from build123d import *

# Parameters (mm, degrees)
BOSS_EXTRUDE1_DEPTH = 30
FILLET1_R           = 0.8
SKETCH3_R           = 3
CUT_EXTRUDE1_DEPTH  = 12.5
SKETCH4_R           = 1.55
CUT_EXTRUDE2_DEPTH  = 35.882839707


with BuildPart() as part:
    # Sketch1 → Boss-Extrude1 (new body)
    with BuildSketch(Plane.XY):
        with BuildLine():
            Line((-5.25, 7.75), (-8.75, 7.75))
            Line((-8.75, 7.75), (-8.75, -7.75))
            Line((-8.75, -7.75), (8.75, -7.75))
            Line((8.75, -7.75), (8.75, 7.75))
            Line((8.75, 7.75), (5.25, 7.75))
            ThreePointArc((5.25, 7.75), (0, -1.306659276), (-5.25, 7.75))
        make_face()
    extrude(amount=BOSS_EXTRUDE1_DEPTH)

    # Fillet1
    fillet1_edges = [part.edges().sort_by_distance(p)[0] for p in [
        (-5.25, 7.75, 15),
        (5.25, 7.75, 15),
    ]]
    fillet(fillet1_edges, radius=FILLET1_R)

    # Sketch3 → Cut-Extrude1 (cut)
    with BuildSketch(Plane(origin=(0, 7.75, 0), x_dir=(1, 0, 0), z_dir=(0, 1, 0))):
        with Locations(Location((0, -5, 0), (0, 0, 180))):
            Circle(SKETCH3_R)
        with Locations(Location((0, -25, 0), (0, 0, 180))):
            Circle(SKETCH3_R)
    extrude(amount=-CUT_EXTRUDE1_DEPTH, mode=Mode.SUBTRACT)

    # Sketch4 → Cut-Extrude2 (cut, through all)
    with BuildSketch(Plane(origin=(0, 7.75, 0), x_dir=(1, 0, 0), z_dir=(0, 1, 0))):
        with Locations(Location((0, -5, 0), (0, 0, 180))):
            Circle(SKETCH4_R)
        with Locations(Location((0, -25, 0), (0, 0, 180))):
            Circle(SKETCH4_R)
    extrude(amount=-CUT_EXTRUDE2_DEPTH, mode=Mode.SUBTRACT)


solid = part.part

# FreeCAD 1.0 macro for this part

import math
import FreeCAD as App
import Part
import Sketcher


def edges_at(feature, points):
    """Names of the edges that pass closest to the given points."""
    edges = feature.Shape.Edges
    near = lambda p: min(range(len(edges)), key=lambda i: edges[i].distToShape(Part.Vertex(*p))[0])
    return sorted({f"Edge{near(p) + 1}" for p in points})

doc = App.newDocument("Part")
params = doc.addObject("Spreadsheet::Sheet", "Params")
for row, (alias, value) in enumerate([
    ("sketch1_radius", "6.05 mm"),
    ("sketch1_width", "3.5 mm"),
    ("sketch1_width2", "17.5 mm"),
    ("sketch1_height", "15.5 mm"),
    ("pad1_length", "30 mm"),
    ("fillet_radius", "0.8 mm"),
    ("sketch2_diameter", "6 mm"),
    ("pocket1_length", "12.5 mm"),
    ("sketch3_diameter", "3.1 mm"),
], start=1):
    params.set(f"A{row}", alias)
    params.set(f"B{row}", "=" + value)
    params.setAlias(f"B{row}", alias)

body = doc.addObject("PartDesign::Body", "Body")

sketch1 = doc.addObject("Sketcher::SketchObject", "Sketch")
body.addObject(sketch1)
sketch1.AttachmentSupport = (doc.XY_Plane, [""])
sketch1.MapMode = "FlatFace"
sketch1.addGeometry(Part.LineSegment(App.Vector(-5.25, 7.75, 0), App.Vector(-8.75, 7.75, 0)), False)
sketch1.addGeometry(Part.LineSegment(App.Vector(-8.75, 7.75, 0), App.Vector(-8.75, -7.75, 0)), False)
sketch1.addGeometry(Part.LineSegment(App.Vector(-8.75, -7.75, 0), App.Vector(8.75, -7.75, 0)), False)
sketch1.addGeometry(Part.LineSegment(App.Vector(8.75, -7.75, 0), App.Vector(8.75, 7.75, 0)), False)
sketch1.addGeometry(Part.LineSegment(App.Vector(8.75, 7.75, 0), App.Vector(5.25, 7.75, 0)), False)
sketch1.addGeometry(Part.ArcOfCircle(Part.Circle(App.Vector(0, 4.743341, 0), App.Vector(0, 0, 1), 6.05), math.radians(150.200362), math.radians(389.799638)), False)
sketch1.addConstraint(Sketcher.Constraint("Coincident", 0, 2, 1, 1))
sketch1.addConstraint(Sketcher.Constraint("Coincident", 1, 2, 2, 1))
sketch1.addConstraint(Sketcher.Constraint("Coincident", 2, 2, 3, 1))
sketch1.addConstraint(Sketcher.Constraint("Coincident", 3, 2, 4, 1))
sketch1.addConstraint(Sketcher.Constraint("Coincident", 4, 2, 5, 2))
sketch1.addConstraint(Sketcher.Constraint("Coincident", 5, 1, 0, 1))
sketch1.addConstraint(Sketcher.Constraint("Horizontal", 0))
sketch1.addConstraint(Sketcher.Constraint("Vertical", 1))
sketch1.addConstraint(Sketcher.Constraint("Horizontal", 2))
sketch1.addConstraint(Sketcher.Constraint("Vertical", 3))
sketch1.addConstraint(Sketcher.Constraint("Horizontal", 4))
sketch1.addConstraint(Sketcher.Constraint("Symmetric", 0, 2, 2, 2, -1, 1))
sketch1.addConstraint(Sketcher.Constraint("Symmetric", 4, 2, 5, 1, -2))
sketch1.addConstraint(Sketcher.Constraint("Radius", 5, 6.05))
sketch1.addConstraint(Sketcher.Constraint("DistanceX", 0, 2, 0, 1, 3.5))
sketch1.addConstraint(Sketcher.Constraint("DistanceX", 2, 1, 2, 2, 17.5))
sketch1.addConstraint(Sketcher.Constraint("DistanceY", 1, 2, 1, 1, 15.5))
sketch1.setExpression("Constraints[13]", "Params.sketch1_radius")
sketch1.setExpression("Constraints[14]", "Params.sketch1_width")
sketch1.setExpression("Constraints[15]", "Params.sketch1_width2")
sketch1.setExpression("Constraints[16]", "Params.sketch1_height")
pad1 = doc.addObject("PartDesign::Pad", "Pad")
body.addObject(pad1)
pad1.Profile = sketch1
pad1.setExpression("Length", "Params.pad1_length")
doc.recompute()

fillet = doc.addObject("PartDesign::Fillet", "Fillet")
body.addObject(fillet)
fillet.Base = (pad1, edges_at(pad1, [(-5.25, 7.75, 15), (5.25, 7.75, 15)]))
fillet.setExpression("Radius", "Params.fillet_radius")

sketch2 = doc.addObject("Sketcher::SketchObject", "Sketch001")
body.addObject(sketch2)
sketch2.AttachmentSupport = (doc.XZ_Plane, [""])
sketch2.MapMode = "FlatFace"
sketch2.AttachmentOffset = App.Placement(App.Vector(0, 0, -7.75), App.Rotation())
sketch2.addGeometry(Part.Circle(App.Vector(0, 5, 0), App.Vector(0, 0, 1), 3), False)
sketch2.addGeometry(Part.Circle(App.Vector(0, 25, 0), App.Vector(0, 0, 1), 3), False)
sketch2.addConstraint(Sketcher.Constraint("Equal", 0, 1))
sketch2.addConstraint(Sketcher.Constraint("PointOnObject", 0, 3, -2))
sketch2.addConstraint(Sketcher.Constraint("PointOnObject", 1, 3, -2))
sketch2.addConstraint(Sketcher.Constraint("Diameter", 0, 6.0))
sketch2.addConstraint(Sketcher.Constraint("DistanceY", -1, 1, 0, 3, 5.0))
sketch2.addConstraint(Sketcher.Constraint("DistanceY", -1, 1, 1, 3, 25.0))
sketch2.setExpression("Constraints[3]", "Params.sketch2_diameter")
pocket1 = doc.addObject("PartDesign::Pocket", "Pocket")
body.addObject(pocket1)
pocket1.Profile = sketch2
pocket1.setExpression("Length", "Params.pocket1_length")
pocket1.Reversed = True

sketch3 = doc.addObject("Sketcher::SketchObject", "Sketch002")
body.addObject(sketch3)
sketch3.AttachmentSupport = (doc.XZ_Plane, [""])
sketch3.MapMode = "FlatFace"
sketch3.AttachmentOffset = App.Placement(App.Vector(0, 0, -7.75), App.Rotation())
sketch3.addGeometry(Part.Circle(App.Vector(0, 5, 0), App.Vector(0, 0, 1), 1.55), False)
sketch3.addGeometry(Part.Circle(App.Vector(0, 25, 0), App.Vector(0, 0, 1), 1.55), False)
sketch3.addConstraint(Sketcher.Constraint("Equal", 0, 1))
sketch3.addConstraint(Sketcher.Constraint("PointOnObject", 0, 3, -2))
sketch3.addConstraint(Sketcher.Constraint("PointOnObject", 1, 3, -2))
sketch3.addConstraint(Sketcher.Constraint("Diameter", 0, 3.1))
sketch3.addConstraint(Sketcher.Constraint("DistanceY", -1, 1, 0, 3, 5.0))
sketch3.addConstraint(Sketcher.Constraint("DistanceY", -1, 1, 1, 3, 25.0))
sketch3.setExpression("Constraints[3]", "Params.sketch3_diameter")
pocket2 = doc.addObject("PartDesign::Pocket", "Pocket001")
body.addObject(pocket2)
pocket2.Profile = sketch3
pocket2.Type = "ThroughAll"
pocket2.Reversed = True

doc.recompute()
